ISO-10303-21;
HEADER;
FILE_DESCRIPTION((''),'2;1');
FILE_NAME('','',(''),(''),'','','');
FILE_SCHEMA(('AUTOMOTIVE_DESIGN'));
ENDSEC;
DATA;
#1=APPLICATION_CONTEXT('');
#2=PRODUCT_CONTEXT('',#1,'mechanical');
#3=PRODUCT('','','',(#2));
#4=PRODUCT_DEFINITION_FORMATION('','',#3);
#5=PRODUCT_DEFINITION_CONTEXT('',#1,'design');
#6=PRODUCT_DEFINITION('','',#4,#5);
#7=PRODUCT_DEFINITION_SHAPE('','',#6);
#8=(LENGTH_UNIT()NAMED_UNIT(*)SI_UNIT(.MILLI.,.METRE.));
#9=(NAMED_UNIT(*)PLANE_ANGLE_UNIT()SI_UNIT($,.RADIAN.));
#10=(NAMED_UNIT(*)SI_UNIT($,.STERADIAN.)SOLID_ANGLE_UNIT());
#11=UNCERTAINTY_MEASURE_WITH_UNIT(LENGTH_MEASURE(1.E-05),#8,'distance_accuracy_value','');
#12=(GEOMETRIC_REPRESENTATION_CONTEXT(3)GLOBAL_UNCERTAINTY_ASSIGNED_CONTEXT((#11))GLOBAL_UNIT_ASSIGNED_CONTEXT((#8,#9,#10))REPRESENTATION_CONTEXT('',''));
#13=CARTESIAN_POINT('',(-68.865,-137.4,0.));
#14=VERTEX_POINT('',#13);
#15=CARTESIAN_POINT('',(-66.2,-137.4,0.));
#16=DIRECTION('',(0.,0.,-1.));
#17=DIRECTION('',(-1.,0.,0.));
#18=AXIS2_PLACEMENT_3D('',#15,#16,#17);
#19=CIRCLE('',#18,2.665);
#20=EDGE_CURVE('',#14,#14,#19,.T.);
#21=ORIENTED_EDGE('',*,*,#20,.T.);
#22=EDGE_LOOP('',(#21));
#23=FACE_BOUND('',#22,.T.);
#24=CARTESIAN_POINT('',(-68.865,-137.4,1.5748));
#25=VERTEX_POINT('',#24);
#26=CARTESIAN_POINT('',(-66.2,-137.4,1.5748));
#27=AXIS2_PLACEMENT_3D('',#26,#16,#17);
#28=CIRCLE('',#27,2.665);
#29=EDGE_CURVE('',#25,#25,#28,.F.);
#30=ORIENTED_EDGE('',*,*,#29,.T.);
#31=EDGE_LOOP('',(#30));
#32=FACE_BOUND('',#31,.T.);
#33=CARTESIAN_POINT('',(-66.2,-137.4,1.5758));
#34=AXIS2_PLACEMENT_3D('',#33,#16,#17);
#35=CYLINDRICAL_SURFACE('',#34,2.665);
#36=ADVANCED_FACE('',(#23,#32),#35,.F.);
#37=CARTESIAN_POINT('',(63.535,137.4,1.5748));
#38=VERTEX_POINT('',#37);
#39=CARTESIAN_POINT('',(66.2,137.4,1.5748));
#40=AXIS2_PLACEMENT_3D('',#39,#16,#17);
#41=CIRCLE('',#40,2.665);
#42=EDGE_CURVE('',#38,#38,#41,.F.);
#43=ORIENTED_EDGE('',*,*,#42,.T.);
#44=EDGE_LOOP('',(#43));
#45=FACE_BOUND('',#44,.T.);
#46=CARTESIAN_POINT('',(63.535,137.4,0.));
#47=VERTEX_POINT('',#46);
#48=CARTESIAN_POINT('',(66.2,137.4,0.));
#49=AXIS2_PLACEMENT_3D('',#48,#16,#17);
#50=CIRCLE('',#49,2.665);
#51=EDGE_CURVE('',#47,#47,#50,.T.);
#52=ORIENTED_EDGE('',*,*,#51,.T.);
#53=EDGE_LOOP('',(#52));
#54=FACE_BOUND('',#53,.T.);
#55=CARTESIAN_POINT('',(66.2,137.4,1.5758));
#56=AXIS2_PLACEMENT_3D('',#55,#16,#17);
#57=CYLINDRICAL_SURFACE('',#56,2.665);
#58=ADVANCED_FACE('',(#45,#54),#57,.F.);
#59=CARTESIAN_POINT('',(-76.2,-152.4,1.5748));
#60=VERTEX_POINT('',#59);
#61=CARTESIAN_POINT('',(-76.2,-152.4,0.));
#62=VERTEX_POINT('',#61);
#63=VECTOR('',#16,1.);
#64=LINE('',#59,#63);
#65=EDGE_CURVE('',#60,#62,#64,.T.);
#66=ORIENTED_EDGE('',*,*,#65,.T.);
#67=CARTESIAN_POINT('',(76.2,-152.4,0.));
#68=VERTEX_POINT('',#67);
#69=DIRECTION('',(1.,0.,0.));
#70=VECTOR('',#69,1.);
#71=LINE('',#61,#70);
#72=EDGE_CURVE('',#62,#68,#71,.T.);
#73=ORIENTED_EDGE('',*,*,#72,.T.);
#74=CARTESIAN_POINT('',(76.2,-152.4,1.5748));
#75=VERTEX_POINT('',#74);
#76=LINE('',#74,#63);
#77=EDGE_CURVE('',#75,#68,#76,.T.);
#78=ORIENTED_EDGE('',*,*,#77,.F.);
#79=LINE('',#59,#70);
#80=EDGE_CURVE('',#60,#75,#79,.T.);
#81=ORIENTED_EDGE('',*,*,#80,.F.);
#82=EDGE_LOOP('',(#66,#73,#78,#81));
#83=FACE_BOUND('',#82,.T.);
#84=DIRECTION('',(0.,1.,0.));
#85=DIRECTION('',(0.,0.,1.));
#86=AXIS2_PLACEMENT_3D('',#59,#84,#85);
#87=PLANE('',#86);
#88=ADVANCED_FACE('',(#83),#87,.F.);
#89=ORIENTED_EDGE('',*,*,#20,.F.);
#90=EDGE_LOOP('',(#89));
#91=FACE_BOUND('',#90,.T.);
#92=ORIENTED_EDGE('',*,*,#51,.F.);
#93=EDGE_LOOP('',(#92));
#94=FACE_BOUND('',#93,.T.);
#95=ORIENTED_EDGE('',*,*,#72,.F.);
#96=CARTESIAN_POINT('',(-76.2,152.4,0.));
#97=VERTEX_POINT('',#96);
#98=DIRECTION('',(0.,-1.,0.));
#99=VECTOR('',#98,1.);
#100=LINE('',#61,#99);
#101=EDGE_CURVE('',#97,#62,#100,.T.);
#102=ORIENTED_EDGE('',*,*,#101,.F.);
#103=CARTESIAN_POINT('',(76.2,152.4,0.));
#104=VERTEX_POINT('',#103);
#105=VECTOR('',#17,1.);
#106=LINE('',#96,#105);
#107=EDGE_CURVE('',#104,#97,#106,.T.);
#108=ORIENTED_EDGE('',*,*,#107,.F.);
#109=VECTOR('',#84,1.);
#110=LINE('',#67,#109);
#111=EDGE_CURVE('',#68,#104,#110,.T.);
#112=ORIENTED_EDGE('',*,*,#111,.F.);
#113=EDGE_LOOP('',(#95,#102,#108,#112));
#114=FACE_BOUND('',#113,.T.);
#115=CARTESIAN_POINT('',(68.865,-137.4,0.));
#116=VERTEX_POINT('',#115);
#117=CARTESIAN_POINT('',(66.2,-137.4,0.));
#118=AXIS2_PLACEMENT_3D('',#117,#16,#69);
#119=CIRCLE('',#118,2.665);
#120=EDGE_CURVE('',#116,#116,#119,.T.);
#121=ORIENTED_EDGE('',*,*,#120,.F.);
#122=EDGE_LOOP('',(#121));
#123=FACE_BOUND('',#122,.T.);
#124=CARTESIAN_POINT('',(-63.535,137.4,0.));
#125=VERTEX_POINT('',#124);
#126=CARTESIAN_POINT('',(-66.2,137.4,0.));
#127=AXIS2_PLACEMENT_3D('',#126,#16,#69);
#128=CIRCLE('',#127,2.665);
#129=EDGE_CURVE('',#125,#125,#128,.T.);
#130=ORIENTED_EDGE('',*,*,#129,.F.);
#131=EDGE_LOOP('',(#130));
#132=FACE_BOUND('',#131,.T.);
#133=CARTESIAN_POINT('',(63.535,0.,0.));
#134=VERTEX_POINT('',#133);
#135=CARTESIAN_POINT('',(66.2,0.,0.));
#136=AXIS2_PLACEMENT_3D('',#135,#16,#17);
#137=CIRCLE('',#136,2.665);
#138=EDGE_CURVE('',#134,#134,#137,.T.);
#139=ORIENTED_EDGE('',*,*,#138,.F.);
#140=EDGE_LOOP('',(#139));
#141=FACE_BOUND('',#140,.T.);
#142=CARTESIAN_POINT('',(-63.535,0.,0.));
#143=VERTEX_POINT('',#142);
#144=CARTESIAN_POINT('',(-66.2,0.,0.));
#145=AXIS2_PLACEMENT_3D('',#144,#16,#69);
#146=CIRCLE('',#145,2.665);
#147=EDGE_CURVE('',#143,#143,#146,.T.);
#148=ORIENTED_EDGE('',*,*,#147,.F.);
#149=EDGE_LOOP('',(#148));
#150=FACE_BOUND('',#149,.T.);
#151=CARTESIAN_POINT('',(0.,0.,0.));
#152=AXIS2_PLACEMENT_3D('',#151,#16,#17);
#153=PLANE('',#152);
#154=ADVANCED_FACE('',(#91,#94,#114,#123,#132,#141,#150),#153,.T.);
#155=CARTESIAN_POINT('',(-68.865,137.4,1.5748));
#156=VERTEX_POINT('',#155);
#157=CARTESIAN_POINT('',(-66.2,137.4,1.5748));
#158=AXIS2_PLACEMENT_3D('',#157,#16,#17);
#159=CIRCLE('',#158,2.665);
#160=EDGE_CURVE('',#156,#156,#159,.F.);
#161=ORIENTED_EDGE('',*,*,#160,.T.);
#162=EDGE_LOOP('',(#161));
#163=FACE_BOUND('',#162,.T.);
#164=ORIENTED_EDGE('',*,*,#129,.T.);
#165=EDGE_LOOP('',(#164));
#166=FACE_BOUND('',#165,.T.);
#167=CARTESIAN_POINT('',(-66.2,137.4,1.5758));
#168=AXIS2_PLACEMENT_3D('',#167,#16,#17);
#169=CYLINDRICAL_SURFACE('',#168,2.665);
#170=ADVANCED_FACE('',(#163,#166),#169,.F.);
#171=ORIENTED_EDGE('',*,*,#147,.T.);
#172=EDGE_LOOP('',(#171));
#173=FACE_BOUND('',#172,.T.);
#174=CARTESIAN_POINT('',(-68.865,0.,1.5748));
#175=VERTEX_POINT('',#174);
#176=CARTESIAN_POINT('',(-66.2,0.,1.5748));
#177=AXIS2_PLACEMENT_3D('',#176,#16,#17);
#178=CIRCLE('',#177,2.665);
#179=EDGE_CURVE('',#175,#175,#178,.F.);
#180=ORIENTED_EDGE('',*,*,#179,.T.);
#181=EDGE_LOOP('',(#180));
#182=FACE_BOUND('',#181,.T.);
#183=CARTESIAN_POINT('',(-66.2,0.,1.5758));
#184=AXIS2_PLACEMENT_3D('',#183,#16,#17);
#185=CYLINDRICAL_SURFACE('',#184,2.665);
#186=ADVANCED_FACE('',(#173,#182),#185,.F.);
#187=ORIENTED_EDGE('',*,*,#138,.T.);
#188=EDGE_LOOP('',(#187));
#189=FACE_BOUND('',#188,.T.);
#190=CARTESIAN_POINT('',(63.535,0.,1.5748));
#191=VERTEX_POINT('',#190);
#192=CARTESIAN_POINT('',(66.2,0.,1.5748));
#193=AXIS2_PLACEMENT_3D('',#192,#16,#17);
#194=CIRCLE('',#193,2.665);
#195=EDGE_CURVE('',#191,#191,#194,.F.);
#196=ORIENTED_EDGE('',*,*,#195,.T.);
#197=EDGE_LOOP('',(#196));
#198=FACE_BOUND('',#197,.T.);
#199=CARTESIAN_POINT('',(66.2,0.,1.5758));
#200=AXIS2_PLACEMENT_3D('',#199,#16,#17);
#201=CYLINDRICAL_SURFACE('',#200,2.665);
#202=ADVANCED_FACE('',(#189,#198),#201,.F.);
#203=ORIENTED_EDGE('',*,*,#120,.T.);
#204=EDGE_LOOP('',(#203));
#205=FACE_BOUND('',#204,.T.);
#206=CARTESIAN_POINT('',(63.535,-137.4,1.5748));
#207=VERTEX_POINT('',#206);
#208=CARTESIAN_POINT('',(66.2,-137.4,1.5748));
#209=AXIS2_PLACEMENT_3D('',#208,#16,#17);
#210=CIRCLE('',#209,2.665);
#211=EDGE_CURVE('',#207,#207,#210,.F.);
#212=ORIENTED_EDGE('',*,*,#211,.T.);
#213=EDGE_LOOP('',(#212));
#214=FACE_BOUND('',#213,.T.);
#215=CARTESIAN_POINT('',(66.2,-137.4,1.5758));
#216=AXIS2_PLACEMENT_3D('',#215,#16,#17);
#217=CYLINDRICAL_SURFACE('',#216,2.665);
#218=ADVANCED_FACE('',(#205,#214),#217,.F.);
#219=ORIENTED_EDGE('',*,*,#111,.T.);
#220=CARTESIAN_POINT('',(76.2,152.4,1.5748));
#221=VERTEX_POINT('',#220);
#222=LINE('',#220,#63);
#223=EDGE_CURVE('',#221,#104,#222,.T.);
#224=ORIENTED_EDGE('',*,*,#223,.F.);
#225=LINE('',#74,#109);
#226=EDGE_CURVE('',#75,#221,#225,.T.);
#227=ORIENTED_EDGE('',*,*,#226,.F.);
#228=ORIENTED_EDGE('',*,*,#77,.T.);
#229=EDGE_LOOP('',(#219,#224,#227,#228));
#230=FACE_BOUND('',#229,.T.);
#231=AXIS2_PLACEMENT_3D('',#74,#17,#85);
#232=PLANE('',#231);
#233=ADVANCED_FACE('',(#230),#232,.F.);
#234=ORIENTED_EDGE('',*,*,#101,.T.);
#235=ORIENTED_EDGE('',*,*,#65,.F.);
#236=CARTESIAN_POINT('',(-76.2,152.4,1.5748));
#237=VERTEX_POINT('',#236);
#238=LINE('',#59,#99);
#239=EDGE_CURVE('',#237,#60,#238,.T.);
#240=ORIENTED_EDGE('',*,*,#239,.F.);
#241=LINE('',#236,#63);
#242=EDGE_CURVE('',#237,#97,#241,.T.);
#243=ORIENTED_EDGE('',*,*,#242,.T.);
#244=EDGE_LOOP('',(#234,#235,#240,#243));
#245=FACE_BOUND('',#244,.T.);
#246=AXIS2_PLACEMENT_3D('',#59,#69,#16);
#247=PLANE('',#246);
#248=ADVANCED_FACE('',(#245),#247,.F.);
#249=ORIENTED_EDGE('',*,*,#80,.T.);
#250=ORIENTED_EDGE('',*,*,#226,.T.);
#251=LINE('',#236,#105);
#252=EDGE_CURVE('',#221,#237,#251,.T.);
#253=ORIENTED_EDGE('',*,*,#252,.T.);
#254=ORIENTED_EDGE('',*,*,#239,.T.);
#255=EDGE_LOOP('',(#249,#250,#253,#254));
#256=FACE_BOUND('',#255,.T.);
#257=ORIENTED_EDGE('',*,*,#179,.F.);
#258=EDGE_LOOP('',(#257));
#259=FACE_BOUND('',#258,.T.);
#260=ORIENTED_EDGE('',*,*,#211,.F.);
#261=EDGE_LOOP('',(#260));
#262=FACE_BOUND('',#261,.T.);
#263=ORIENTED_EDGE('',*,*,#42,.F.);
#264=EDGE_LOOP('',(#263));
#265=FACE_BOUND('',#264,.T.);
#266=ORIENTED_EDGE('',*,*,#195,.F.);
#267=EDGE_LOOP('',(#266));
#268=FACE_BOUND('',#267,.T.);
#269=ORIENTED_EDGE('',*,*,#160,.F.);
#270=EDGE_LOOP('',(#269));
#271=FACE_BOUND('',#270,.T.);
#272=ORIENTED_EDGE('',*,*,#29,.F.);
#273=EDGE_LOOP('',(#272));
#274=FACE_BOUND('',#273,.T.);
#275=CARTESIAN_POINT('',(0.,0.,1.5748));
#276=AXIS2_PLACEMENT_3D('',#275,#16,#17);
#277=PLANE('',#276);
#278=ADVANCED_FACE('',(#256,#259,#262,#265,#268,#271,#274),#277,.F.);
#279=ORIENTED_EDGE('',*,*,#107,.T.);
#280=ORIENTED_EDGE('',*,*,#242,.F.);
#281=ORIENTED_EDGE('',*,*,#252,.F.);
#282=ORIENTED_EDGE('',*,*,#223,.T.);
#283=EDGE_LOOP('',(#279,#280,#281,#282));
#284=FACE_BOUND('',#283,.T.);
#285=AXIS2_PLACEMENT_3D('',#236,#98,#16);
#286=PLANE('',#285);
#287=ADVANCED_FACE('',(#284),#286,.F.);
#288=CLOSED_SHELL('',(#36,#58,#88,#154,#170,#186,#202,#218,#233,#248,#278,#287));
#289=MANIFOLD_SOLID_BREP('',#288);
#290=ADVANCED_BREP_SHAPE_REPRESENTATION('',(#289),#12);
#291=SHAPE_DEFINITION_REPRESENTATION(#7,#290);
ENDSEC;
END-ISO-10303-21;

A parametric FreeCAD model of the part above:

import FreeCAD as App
import Part
import Sketcher
from FreeCAD import Vector
Q = App.Units.Quantity


def add_polygon(sketch, points):
    """Adds a closed chain of lines whose ends are joined by coincident constraints."""
    first, n = sketch.GeometryCount, len(points)
    for a, b in zip(points, points[1:] + points[:1]):
        sketch.addGeometry(Part.LineSegment(App.Vector(*a, 0), App.Vector(*b, 0)), False)
    for i in range(n):
        sketch.addConstraint(Sketcher.Constraint("Coincident", first + i, 2, first + (i + 1) % n, 1))

doc = App.newDocument("Part")
body = doc.addObject("PartDesign::Body", "Body")

# Sketch on XY plane
sketch1 = body.newObject("Sketcher::SketchObject", "Sketch")
sketch1.AttachmentSupport = (doc.getObject("XY_Plane"), [""])
sketch1.MapMode = "FlatFace"
add_polygon(sketch1, [(-76, 152), (-76, -152), (76, -152), (76, 152)])  # lines 0-3
sketch1.addConstraint(Sketcher.Constraint("Vertical", 0))
sketch1.addConstraint(Sketcher.Constraint("Horizontal", 1))
sketch1.addConstraint(Sketcher.Constraint("Vertical", 2))
sketch1.addConstraint(Sketcher.Constraint("Horizontal", 3))
sketch1.addConstraint(Sketcher.Constraint("Symmetric", 0, 2, 2, 2, -1, 1))
sketch1.addConstraint(Sketcher.Constraint("DistanceX", 1, 1, 1, 2, Q("6 in")))
sketch1.addConstraint(Sketcher.Constraint("DistanceY", 0, 2, 0, 1, Q("12 in")))
pad1 = body.newObject("PartDesign::Pad", "Pad")
pad1.Profile = sketch1
pad1.Length = Q("0.062 in")

# Sketch on XY plane
sketch2 = body.newObject("Sketcher::SketchObject", "Sketch001")
sketch2.AttachmentSupport = (doc.getObject("XY_Plane"), [""])
sketch2.MapMode = "FlatFace"
sketch2.addGeometry(Part.Circle(Vector(66.2, 137.4, 0), Vector(0, 0, 1), 2.7), False)
sketch2.addConstraint(Sketcher.Constraint("Diameter", 0, Q("5.33 mm")))
sketch2.addConstraint(Sketcher.Constraint("DistanceX", -1, 1, 0, 3, Q("66.2 mm")))
sketch2.addConstraint(Sketcher.Constraint("DistanceY", -1, 1, 0, 3, Q("137.4 mm")))
pocket1 = body.newObject("PartDesign::Pocket", "Pocket")
pocket1.Profile = sketch2
pocket1.Type = "UpToFirst"
pocket1.Reversed = True

# Sketch on XY plane
sketch3 = body.newObject("Sketcher::SketchObject", "Sketch002")
sketch3.AttachmentSupport = (doc.getObject("XY_Plane"), [""])
sketch3.MapMode = "FlatFace"
sketch3.addGeometry(Part.Circle(Vector(66.2, -137.4, 0), Vector(0, 0, 1), 2.7), False)
sketch3.addConstraint(Sketcher.Constraint("Diameter", 0, Q("5.33 mm")))
sketch3.addConstraint(Sketcher.Constraint("DistanceX", -1, 1, 0, 3, Q("66.2 mm")))
sketch3.addConstraint(Sketcher.Constraint("DistanceY", 0, 3, -1, 1, Q("137.4 mm")))
pocket2 = body.newObject("PartDesign::Pocket", "Pocket001")
pocket2.Profile = sketch3
pocket2.Type = "UpToFirst"
pocket2.Reversed = True

# Sketch on XY plane
sketch4 = body.newObject("Sketcher::SketchObject", "Sketch003")
sketch4.AttachmentSupport = (doc.getObject("XY_Plane"), [""])
sketch4.MapMode = "FlatFace"
sketch4.addGeometry(Part.Circle(Vector(66.2, 0, 0), Vector(0, 0, 1), 2.7), False)
sketch4.addConstraint(Sketcher.Constraint("PointOnObject", 0, 3, -1))
sketch4.addConstraint(Sketcher.Constraint("Diameter", 0, Q("5.33 mm")))
sketch4.addConstraint(Sketcher.Constraint("DistanceX", -1, 1, 0, 3, Q("66.2 mm")))
pocket3 = body.newObject("PartDesign::Pocket", "Pocket002")
pocket3.Profile = sketch4
pocket3.Type = "UpToFirst"
pocket3.Reversed = True

# Sketch on XY plane
sketch5 = body.newObject("Sketcher::SketchObject", "Sketch004")
sketch5.AttachmentSupport = (doc.getObject("XY_Plane"), [""])
sketch5.MapMode = "FlatFace"
sketch5.addGeometry(Part.Circle(Vector(-66.2, -137.4, 0), Vector(0, 0, 1), 2.7), False)
sketch5.addConstraint(Sketcher.Constraint("Diameter", 0, Q("5.33 mm")))
sketch5.addConstraint(Sketcher.Constraint("DistanceX", 0, 3, -1, 1, Q("66.2 mm")))
sketch5.addConstraint(Sketcher.Constraint("DistanceY", 0, 3, -1, 1, Q("137.4 mm")))
pocket4 = body.newObject("PartDesign::Pocket", "Pocket003")
pocket4.Profile = sketch5
pocket4.Type = "UpToFirst"
pocket4.Reversed = True

# Sketch on XY plane
sketch6 = body.newObject("Sketcher::SketchObject", "Sketch005")
sketch6.AttachmentSupport = (doc.getObject("XY_Plane"), [""])
sketch6.MapMode = "FlatFace"
sketch6.addGeometry(Part.Circle(Vector(-66.2, 0, 0), Vector(0, 0, 1), 2.7), False)
sketch6.addConstraint(Sketcher.Constraint("PointOnObject", 0, 3, -1))
sketch6.addConstraint(Sketcher.Constraint("Diameter", 0, Q("5.33 mm")))
sketch6.addConstraint(Sketcher.Constraint("DistanceX", 0, 3, -1, 1, Q("66.2 mm")))
pocket5 = body.newObject("PartDesign::Pocket", "Pocket004")
pocket5.Profile = sketch6
pocket5.Type = "UpToFirst"
pocket5.Reversed = True

# Sketch on XY plane
sketch7 = body.newObject("Sketcher::SketchObject", "Sketch006")
sketch7.AttachmentSupport = (doc.getObject("XY_Plane"), [""])
sketch7.MapMode = "FlatFace"
sketch7.addGeometry(Part.Circle(Vector(-66.2, 137.4, 0), Vector(0, 0, 1), 2.7), False)
sketch7.addConstraint(Sketcher.Constraint("Diameter", 0, Q("5.33 mm")))
sketch7.addConstraint(Sketcher.Constraint("DistanceX", 0, 3, -1, 1, Q("66.2 mm")))
sketch7.addConstraint(Sketcher.Constraint("DistanceY", -1, 1, 0, 3, Q("137.4 mm")))
pocket6 = body.newObject("PartDesign::Pocket", "Pocket005")
pocket6.Profile = sketch7
pocket6.Type = "UpToFirst"
pocket6.Reversed = True

doc.recompute()
